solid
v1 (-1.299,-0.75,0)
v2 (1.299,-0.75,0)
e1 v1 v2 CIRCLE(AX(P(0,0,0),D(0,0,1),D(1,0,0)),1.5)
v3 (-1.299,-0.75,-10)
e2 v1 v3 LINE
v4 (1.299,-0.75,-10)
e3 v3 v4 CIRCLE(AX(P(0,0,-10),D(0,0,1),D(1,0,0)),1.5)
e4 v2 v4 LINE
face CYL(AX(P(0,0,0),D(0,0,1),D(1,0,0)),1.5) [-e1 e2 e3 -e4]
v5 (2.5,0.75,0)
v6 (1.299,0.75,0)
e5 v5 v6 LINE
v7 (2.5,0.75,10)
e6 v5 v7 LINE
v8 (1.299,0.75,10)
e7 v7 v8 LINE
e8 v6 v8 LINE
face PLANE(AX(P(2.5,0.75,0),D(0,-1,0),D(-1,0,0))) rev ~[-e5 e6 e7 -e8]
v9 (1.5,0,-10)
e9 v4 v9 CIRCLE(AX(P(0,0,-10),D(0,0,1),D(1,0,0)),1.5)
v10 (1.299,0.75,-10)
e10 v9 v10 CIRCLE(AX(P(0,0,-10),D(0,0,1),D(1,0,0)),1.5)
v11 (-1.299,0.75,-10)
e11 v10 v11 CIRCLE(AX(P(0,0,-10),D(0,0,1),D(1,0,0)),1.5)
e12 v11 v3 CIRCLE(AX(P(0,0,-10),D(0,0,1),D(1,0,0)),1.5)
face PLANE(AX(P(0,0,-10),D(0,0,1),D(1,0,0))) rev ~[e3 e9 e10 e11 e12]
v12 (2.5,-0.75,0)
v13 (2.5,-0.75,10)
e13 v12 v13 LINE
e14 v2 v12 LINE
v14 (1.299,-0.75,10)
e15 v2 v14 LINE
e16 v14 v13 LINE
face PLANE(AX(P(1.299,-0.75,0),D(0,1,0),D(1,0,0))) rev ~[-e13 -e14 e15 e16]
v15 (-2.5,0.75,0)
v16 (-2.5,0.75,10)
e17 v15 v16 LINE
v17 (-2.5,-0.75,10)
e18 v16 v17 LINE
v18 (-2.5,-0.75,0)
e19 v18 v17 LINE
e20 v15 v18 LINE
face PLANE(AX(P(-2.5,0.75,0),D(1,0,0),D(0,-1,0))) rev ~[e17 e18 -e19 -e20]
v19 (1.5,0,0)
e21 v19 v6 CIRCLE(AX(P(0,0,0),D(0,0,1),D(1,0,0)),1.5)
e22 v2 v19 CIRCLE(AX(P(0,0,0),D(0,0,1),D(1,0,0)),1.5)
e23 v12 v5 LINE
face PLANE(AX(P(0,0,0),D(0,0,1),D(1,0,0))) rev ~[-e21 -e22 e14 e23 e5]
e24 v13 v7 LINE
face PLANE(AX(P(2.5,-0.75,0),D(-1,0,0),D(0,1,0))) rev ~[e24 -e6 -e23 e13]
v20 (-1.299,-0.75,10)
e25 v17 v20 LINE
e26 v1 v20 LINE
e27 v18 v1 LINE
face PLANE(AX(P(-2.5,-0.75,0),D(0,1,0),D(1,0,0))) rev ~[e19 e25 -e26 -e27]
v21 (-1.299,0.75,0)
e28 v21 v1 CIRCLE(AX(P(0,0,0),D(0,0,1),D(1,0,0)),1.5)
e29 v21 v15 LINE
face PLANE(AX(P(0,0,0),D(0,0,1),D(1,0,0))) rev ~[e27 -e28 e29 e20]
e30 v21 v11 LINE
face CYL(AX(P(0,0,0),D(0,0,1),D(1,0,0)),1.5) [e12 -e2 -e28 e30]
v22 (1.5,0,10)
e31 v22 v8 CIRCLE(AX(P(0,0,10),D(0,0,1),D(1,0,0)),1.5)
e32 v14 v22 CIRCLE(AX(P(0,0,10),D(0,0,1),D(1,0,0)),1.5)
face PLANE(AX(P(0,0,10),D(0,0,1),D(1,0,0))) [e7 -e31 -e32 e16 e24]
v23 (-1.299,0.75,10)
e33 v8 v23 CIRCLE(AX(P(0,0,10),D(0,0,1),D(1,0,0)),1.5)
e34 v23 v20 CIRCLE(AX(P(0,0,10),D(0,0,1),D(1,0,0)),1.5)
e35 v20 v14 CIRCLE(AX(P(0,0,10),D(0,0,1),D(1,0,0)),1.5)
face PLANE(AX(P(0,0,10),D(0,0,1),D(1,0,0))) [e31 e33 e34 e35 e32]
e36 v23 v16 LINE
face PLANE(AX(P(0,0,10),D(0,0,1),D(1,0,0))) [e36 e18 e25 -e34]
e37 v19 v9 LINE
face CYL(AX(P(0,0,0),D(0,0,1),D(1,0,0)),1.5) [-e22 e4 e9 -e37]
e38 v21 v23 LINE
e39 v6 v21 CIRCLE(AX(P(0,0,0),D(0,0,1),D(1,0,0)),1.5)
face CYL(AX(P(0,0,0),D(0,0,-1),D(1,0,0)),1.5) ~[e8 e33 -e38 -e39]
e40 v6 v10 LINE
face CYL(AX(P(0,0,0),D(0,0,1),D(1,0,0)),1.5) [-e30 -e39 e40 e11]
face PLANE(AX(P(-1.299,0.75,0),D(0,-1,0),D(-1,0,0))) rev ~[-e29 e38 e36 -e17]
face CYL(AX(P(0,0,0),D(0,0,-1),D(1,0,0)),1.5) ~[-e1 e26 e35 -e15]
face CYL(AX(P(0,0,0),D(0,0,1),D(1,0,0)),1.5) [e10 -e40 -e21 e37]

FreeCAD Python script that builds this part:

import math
import FreeCAD as App
import Part
import Sketcher

V = App.Vector
Q = App.Units.Quantity

doc = App.newDocument("Part")
body = doc.addObject("PartDesign::Body", "Body")

# Sketch on XY plane
sketch1 = doc.addObject("Sketcher::SketchObject", "Sketch")
body.addObject(sketch1)
sketch1.AttachmentSupport = (doc.XY_Plane, [""])
sketch1.MapMode = "FlatFace"
sketch1.addGeometry(Part.Circle(V(0, 0, 0), V(0, 0, 1), 1.5), False)
sketch1.addConstraint(Sketcher.Constraint("Coincident", 0, 3, -1, 1))
sketch1.addConstraint(Sketcher.Constraint("Diameter", 0, Q("3 mm")))
pad1 = doc.addObject("PartDesign::Pad", "Pad")
body.addObject(pad1)
pad1.Profile = sketch1
pad1.Length = 10
pad1.Reversed = True

# Sketch on XY plane
sketch2 = doc.addObject("Sketcher::SketchObject", "Sketch001")
body.addObject(sketch2)
sketch2.AttachmentSupport = (doc.XY_Plane, [""])
sketch2.MapMode = "FlatFace"
sketch2.addGeometry(Part.LineSegment(V(1.3, -0.8, 0), V(2.5, -0.8, 0)), False)
sketch2.addGeometry(Part.LineSegment(V(2.5, -0.8, 0), V(2.5, 0.8, 0)), False)
sketch2.addGeometry(Part.LineSegment(V(2.5, 0.8, 0), V(1.3, 0.8, 0)), False)
sketch2.addGeometry(Part.ArcOfCircle(Part.Circle(V(0, 0, 0), V(0, 0, 1), 1.5), math.radians(30), math.radians(150)), False)
sketch2.addGeometry(Part.LineSegment(V(-1.3, 0.8, 0), V(-2.5, 0.8, 0)), False)
sketch2.addGeometry(Part.LineSegment(V(-2.5, 0.8, 0), V(-2.5, -0.8, 0)), False)
sketch2.addGeometry(Part.LineSegment(V(-2.5, -0.8, 0), V(-1.3, -0.8, 0)), False)
sketch2.addGeometry(Part.ArcOfCircle(Part.Circle(V(0, 0, 0), V(0, 0, 1), 1.5), math.radians(-150), math.radians(-30)), False)
sketch2.addConstraint(Sketcher.Constraint("Coincident", 0, 2, 1, 1))
sketch2.addConstraint(Sketcher.Constraint("Coincident", 1, 2, 2, 1))
sketch2.addConstraint(Sketcher.Constraint("Coincident", 2, 2, 3, 1))
sketch2.addConstraint(Sketcher.Constraint("Coincident", 3, 2, 4, 1))
sketch2.addConstraint(Sketcher.Constraint("Coincident", 4, 2, 5, 1))
sketch2.addConstraint(Sketcher.Constraint("Coincident", 5, 2, 6, 1))
sketch2.addConstraint(Sketcher.Constraint("Coincident", 6, 2, 7, 1))
sketch2.addConstraint(Sketcher.Constraint("Coincident", 7, 2, 0, 1))
sketch2.addConstraint(Sketcher.Constraint("Horizontal", 0))
sketch2.addConstraint(Sketcher.Constraint("Vertical", 1))
sketch2.addConstraint(Sketcher.Constraint("Horizontal", 2))
sketch2.addConstraint(Sketcher.Constraint("Horizontal", 4))
sketch2.addConstraint(Sketcher.Constraint("Vertical", 5))
sketch2.addConstraint(Sketcher.Constraint("Horizontal", 6))
sketch2.addConstraint(Sketcher.Constraint("Coincident", 3, 3, -1, 1))
sketch2.addConstraint(Sketcher.Constraint("Coincident", 7, 3, -1, 1))
sketch2.addConstraint(Sketcher.Constraint("Equal", 3, 7))
sketch2.addConstraint(Sketcher.Constraint("Symmetric", 0, 2, 4, 2, -1, 1))
sketch2.addConstraint(Sketcher.Constraint("Horizontal", 2, 2, 3, 2))
sketch2.addConstraint(Sketcher.Constraint("Horizontal", 0, 2, 5, 2))
sketch2.addConstraint(Sketcher.Constraint("Radius", 3, Q("1.5 mm")))
sketch2.addConstraint(Sketcher.Constraint("DistanceY", 1, 1, 1, 2, Q("1.5 mm")))
sketch2.addConstraint(Sketcher.Constraint("DistanceX", 4, 2, 1, 2, Q("5 mm")))
pad2 = doc.addObject("PartDesign::Pad", "Pad001")
body.addObject(pad2)
pad2.Profile = sketch2
pad2.Length = 10

doc.recompute()
